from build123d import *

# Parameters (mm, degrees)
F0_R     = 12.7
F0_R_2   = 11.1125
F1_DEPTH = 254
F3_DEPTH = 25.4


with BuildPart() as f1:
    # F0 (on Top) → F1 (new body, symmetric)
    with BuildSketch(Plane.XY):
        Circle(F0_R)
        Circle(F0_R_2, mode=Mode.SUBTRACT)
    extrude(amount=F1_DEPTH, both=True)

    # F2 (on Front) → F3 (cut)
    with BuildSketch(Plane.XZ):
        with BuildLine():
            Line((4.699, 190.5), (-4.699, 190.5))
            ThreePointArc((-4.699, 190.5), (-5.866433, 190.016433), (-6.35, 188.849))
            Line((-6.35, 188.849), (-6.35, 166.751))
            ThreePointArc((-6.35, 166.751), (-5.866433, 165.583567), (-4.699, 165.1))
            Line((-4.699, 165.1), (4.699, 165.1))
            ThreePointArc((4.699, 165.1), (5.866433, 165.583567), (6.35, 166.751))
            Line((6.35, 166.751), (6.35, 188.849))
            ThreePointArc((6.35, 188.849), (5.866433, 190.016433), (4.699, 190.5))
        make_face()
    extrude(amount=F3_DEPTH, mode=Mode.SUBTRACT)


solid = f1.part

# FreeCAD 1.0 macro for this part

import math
import FreeCAD as App
import Part
import Sketcher
Q = App.Units.Quantity

doc = App.newDocument("Part")
body = doc.addObject("PartDesign::Body", "Body")

# Sketch on XY plane
sketch1 = body.newObject("Sketcher::SketchObject", "Sketch")
sketch1.AttachmentSupport = (doc.getObject("XY_Plane"), [""])
sketch1.MapMode = "FlatFace"
sketch1.addGeometry(Part.Circle(App.Vector(0, 0, 0), App.Vector(0, 0, 1), 13), False)
sketch1.addGeometry(Part.Circle(App.Vector(0, 0, 0), App.Vector(0, 0, 1), 11), False)
sketch1.addConstraint(Sketcher.Constraint("Coincident", 0, 3, -1, 1))
sketch1.addConstraint(Sketcher.Constraint("Coincident", 1, 3, -1, 1))
sketch1.addConstraint(Sketcher.Constraint("Diameter", 0, Q("1 in")))
sketch1.addConstraint(Sketcher.Constraint("Diameter", 1, Q("0.875 in")))
pad1 = body.newObject("PartDesign::Pad", "Pad")
pad1.Profile = sketch1
pad1.Length = Q("20 in")
pad1.Midplane = True

# Sketch on XZ plane
sketch2 = body.newObject("Sketcher::SketchObject", "Sketch001")
sketch2.AttachmentSupport = (doc.getObject("XZ_Plane"), [""])
sketch2.MapMode = "FlatFace"
sketch2.addGeometry(Part.LineSegment(App.Vector(4.7, 190.5, 0), App.Vector(-4.7, 190.5, 0)), False)
sketch2.addGeometry(Part.ArcOfCircle(Part.Circle(App.Vector(-4.7, 188.8, 0), App.Vector(0, 0, 1), 1.7), math.radians(90), math.radians(180)), False)
sketch2.addGeometry(Part.LineSegment(App.Vector(-6.3, 188.8, 0), App.Vector(-6.3, 166.8, 0)), False)
sketch2.addGeometry(Part.ArcOfCircle(Part.Circle(App.Vector(-4.7, 166.8, 0), App.Vector(0, 0, 1), 1.7), math.radians(-180), math.radians(-90)), False)
sketch2.addGeometry(Part.LineSegment(App.Vector(-4.7, 165.1, 0), App.Vector(4.7, 165.1, 0)), False)
sketch2.addGeometry(Part.ArcOfCircle(Part.Circle(App.Vector(4.7, 166.8, 0), App.Vector(0, 0, 1), 1.7), math.radians(-90), math.radians(0)), False)
sketch2.addGeometry(Part.LineSegment(App.Vector(6.3, 166.8, 0), App.Vector(6.3, 188.8, 0)), False)
sketch2.addGeometry(Part.ArcOfCircle(Part.Circle(App.Vector(4.7, 188.8, 0), App.Vector(0, 0, 1), 1.7), math.radians(0), math.radians(90)), False)
sketch2.addConstraint(Sketcher.Constraint("Tangent", 0, 2, 1, 1))
sketch2.addConstraint(Sketcher.Constraint("Tangent", 1, 2, 2, 1))
sketch2.addConstraint(Sketcher.Constraint("Tangent", 2, 2, 3, 1))
sketch2.addConstraint(Sketcher.Constraint("Tangent", 3, 2, 4, 1))
sketch2.addConstraint(Sketcher.Constraint("Tangent", 4, 2, 5, 1))
sketch2.addConstraint(Sketcher.Constraint("Tangent", 5, 2, 6, 1))
sketch2.addConstraint(Sketcher.Constraint("Tangent", 6, 2, 7, 1))
sketch2.addConstraint(Sketcher.Constraint("Tangent", 7, 2, 0, 1))
sketch2.addConstraint(Sketcher.Constraint("Horizontal", 0))
sketch2.addConstraint(Sketcher.Constraint("Vertical", 2))
sketch2.addConstraint(Sketcher.Constraint("Horizontal", 4))
sketch2.addConstraint(Sketcher.Constraint("Vertical", 6))
sketch2.addConstraint(Sketcher.Constraint("Equal", 1, 3))
sketch2.addConstraint(Sketcher.Constraint("Equal", 3, 5))
sketch2.addConstraint(Sketcher.Constraint("Equal", 5, 7))
sketch2.addConstraint(Sketcher.Constraint("Radius", 1, Q("0.065 in")))
sketch2.addConstraint(Sketcher.Constraint("DistanceX", 0, 2, 0, 1, Q("0.37 in")))
sketch2.addConstraint(Sketcher.Constraint("DistanceY", 2, 2, 2, 1, Q("0.87 in")))
sketch2.addConstraint(Sketcher.Constraint("DistanceY", -1, 1, 0, 2, Q("7.5 in")))
sketch2.addConstraint(Sketcher.Constraint("DistanceX", 1, 2, -1, 1, Q("0.25 in")))
pocket1 = body.newObject("PartDesign::Pocket", "Pocket")
pocket1.Profile = sketch2
pocket1.Length = Q("1 in")
pocket1.Reversed = True

doc.recompute()
